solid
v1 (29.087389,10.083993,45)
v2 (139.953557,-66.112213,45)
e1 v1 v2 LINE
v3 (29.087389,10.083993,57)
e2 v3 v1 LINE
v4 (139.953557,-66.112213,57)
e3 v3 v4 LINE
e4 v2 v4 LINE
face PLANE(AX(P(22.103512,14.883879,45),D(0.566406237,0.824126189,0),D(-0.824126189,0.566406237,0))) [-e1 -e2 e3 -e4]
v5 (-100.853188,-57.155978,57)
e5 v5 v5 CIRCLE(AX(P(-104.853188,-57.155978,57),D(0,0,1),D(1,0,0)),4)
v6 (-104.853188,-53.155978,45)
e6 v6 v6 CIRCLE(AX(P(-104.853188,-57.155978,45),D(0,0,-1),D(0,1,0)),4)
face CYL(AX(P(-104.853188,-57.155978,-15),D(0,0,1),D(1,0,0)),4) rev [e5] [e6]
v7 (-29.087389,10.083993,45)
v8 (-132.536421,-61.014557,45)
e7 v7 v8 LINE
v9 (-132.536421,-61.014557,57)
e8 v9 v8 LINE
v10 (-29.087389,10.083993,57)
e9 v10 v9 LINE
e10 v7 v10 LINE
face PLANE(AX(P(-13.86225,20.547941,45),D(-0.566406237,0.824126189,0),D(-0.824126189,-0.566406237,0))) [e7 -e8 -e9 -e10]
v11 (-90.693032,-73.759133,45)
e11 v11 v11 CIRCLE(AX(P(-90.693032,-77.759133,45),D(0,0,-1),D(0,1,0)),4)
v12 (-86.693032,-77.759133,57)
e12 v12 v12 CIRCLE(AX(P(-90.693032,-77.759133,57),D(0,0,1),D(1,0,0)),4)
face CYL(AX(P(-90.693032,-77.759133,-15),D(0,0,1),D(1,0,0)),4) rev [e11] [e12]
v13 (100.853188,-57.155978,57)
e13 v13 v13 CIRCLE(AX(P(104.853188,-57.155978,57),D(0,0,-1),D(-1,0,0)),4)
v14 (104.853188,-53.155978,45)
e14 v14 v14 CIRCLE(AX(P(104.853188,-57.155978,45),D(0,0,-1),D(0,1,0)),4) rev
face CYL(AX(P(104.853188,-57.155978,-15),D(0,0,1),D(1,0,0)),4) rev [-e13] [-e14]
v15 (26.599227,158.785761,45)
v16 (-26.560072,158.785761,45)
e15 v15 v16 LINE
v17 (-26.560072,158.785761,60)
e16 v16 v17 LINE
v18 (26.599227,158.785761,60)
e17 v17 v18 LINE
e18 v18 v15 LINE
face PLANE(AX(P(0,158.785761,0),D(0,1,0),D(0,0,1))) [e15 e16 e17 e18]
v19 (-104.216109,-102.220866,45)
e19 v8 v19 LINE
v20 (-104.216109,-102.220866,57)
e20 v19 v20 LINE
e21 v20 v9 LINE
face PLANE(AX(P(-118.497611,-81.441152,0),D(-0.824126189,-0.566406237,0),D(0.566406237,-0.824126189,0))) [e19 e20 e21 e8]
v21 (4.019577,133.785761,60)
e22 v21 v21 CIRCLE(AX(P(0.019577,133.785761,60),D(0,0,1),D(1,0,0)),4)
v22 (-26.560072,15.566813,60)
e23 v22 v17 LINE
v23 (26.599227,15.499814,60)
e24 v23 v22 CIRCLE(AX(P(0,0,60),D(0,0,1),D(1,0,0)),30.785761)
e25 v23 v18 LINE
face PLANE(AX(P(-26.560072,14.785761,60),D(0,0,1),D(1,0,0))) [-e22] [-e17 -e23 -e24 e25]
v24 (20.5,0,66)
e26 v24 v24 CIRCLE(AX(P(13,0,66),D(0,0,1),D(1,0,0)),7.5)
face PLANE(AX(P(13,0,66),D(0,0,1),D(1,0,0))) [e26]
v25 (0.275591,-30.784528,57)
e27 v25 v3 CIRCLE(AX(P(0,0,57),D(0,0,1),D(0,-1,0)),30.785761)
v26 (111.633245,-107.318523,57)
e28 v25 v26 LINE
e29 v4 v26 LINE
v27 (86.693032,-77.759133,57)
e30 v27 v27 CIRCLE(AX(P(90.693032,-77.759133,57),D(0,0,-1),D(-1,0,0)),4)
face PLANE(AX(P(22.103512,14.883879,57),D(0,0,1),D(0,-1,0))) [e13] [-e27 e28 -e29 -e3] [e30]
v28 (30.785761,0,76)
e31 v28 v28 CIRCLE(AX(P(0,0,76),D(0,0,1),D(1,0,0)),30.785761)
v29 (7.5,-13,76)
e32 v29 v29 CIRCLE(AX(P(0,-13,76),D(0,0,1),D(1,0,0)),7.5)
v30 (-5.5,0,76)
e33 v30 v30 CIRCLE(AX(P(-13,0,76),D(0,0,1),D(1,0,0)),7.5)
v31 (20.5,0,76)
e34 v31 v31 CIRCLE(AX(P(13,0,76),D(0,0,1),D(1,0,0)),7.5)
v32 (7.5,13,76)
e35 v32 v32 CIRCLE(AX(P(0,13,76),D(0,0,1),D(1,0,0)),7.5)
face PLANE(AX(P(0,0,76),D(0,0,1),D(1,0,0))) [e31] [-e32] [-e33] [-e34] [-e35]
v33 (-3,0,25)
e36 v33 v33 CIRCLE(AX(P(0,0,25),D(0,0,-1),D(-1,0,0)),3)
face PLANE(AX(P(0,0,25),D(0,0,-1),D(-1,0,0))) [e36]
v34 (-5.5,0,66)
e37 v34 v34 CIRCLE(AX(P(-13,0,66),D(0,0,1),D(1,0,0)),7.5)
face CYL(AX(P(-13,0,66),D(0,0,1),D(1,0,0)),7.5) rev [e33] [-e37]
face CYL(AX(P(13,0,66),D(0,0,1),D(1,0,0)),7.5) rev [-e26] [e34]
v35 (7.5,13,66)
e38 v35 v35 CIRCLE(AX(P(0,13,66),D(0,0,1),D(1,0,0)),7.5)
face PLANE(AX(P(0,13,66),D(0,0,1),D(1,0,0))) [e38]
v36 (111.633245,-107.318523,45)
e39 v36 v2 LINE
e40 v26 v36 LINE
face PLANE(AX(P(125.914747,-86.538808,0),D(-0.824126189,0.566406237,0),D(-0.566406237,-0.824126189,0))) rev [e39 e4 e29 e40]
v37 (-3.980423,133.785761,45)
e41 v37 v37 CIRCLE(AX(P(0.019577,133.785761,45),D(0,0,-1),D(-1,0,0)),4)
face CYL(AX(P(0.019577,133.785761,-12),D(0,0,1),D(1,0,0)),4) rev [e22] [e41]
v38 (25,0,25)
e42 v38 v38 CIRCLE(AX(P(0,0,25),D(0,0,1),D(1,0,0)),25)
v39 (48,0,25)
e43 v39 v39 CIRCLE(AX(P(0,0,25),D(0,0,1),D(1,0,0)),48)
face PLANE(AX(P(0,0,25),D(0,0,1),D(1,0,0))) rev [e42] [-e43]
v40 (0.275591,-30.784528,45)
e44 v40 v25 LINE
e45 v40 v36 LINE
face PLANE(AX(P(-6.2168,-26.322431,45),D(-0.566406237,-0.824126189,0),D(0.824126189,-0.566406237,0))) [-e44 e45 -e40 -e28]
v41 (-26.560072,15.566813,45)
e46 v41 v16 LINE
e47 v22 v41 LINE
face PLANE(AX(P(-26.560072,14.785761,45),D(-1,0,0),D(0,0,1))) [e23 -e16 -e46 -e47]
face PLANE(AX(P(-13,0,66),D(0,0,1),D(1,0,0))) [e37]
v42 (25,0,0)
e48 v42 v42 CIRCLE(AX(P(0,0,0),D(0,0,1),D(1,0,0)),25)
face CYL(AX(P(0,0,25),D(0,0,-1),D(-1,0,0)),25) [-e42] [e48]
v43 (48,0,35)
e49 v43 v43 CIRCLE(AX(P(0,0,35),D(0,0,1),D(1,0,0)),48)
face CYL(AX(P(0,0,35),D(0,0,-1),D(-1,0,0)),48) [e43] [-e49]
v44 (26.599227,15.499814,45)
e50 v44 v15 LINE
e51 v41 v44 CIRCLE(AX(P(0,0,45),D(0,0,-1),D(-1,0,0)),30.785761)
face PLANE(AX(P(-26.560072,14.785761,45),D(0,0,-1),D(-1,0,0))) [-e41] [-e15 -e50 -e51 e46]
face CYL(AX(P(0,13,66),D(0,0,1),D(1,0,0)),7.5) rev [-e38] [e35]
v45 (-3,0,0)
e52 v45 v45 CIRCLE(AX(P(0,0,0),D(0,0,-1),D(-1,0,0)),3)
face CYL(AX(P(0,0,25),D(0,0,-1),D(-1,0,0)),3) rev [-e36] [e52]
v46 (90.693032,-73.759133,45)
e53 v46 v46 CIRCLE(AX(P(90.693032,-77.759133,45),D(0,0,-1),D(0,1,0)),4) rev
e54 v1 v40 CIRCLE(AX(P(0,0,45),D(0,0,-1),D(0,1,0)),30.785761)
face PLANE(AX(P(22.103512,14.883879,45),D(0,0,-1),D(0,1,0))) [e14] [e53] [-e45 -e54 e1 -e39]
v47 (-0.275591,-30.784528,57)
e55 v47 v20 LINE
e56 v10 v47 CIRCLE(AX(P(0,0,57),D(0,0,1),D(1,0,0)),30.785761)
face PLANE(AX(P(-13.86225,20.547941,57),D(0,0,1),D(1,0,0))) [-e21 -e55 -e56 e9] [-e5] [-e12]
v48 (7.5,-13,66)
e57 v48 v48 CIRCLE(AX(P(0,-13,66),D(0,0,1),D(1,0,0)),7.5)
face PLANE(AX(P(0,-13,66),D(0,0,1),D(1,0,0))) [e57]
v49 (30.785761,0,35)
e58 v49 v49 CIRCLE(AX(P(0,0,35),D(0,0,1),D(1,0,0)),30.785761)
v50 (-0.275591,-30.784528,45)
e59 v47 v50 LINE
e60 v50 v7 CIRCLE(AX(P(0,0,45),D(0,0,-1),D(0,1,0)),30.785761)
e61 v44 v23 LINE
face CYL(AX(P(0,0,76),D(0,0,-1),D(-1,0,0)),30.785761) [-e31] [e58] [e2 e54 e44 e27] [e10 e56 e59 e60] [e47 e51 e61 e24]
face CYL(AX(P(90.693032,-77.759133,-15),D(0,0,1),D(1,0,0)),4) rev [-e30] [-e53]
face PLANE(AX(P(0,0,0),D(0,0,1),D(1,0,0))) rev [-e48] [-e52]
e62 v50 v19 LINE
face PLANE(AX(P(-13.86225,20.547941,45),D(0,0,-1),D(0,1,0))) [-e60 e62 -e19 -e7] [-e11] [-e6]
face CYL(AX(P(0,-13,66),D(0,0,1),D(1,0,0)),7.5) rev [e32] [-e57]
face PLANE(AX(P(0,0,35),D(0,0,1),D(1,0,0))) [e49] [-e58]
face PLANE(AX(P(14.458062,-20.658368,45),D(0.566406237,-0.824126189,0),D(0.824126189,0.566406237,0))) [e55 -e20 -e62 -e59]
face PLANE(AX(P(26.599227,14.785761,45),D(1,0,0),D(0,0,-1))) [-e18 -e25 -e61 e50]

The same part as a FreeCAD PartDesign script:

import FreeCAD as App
import Part
import Sketcher
Q = App.Units.Quantity


def add_polygon(sketch, points):
    """Adds a closed chain of lines whose ends are joined by coincident constraints."""
    first, n = sketch.GeometryCount, len(points)
    for a, b in zip(points, points[1:] + points[:1]):
        sketch.addGeometry(Part.LineSegment(App.Vector(*a, 0), App.Vector(*b, 0)), False)
    for i in range(n):
        sketch.addConstraint(Sketcher.Constraint("Coincident", first + i, 2, first + (i + 1) % n, 1))

doc = App.newDocument("Part")
params = doc.addObject("Spreadsheet::Sheet", "Params")
for row, (alias, value) in enumerate([
    ("sketch1_diameter", "50 mm"),
    ("pad1_length", "25 mm"),
    ("sketch2_diameter", "96 mm"),
    ("pad2_length", "10 mm"),
    ("pad3_length", "41 mm"),
    ("sketch4_width", "12 mm"),
    ("sketch4_height", "50 mm"),
    ("pad4_length", "113 mm"),
    ("pad4_length2", "31 mm"),
    ("sketch5_width", "12 mm"),
    ("sketch5_height", "50 mm"),
    ("pad5_length", "122 mm"),
    ("pad5_length2", "21 mm"),
    ("sketch6_diameter", "6 mm"),
    ("pocket1_length", "25 mm"),
    ("sketch7_height", "15 mm"),
    ("pad6_length", "128 mm"),
    ("pad6_length2", "16 mm"),
    ("sketch8_diameter", "15 mm"),
    ("pocket2_length", "10 mm"),
    ("sketch9_diameter", "8 mm"),
    ("pocket3_length", "72 mm"),
    ("sketch10_diameter", "8 mm"),
    ("pocket4_length", "72 mm"),
], start=1):
    params.set(f"A{row}", alias)
    params.set(f"B{row}", "=" + value)
    params.setAlias(f"B{row}", alias)

body = doc.addObject("PartDesign::Body", "Body")

sketch1 = doc.addObject("Sketcher::SketchObject", "Sketch")
body.addObject(sketch1)
sketch1.AttachmentSupport = (doc.XY_Plane, [""])
sketch1.MapMode = "FlatFace"
sketch1.addGeometry(Part.Circle(App.Vector(0, 0, 0), App.Vector(0, 0, 1), 25), False)
sketch1.addConstraint([
    Sketcher.Constraint("Coincident", 0, 3, -1, 1),
    Sketcher.Constraint("Diameter", 0, Q("50 mm")),
])
sketch1.setExpression("Constraints[1]", "Params.sketch1_diameter")
pad1 = doc.addObject("PartDesign::Pad", "Pad")
body.addObject(pad1)
pad1.Profile = sketch1
pad1.setExpression("Length", "Params.pad1_length")

sketch2 = doc.addObject("Sketcher::SketchObject", "Sketch001")
body.addObject(sketch2)
sketch2.AttachmentSupport = (doc.XY_Plane, [""])
sketch2.MapMode = "FlatFace"
sketch2.AttachmentOffset = App.Placement(App.Vector(0, 0, 25), App.Rotation())
sketch2.addGeometry(Part.Circle(App.Vector(0, 0, 0), App.Vector(0, 0, 1), 48), False)
sketch2.addConstraint([
    Sketcher.Constraint("Coincident", 0, 3, -1, 1),
    Sketcher.Constraint("Diameter", 0, Q("96 mm")),
])
sketch2.setExpression("Constraints[1]", "Params.sketch2_diameter")
pad2 = doc.addObject("PartDesign::Pad", "Pad001")
body.addObject(pad2)
pad2.Profile = sketch2
pad2.setExpression("Length", "Params.pad2_length")

sketch3 = doc.addObject("Sketcher::SketchObject", "Sketch002")
body.addObject(sketch3)
sketch3.AttachmentSupport = (doc.XY_Plane, [""])
sketch3.MapMode = "FlatFace"
sketch3.AttachmentOffset = App.Placement(App.Vector(0, 0, 35), App.Rotation())
sketch3.addGeometry(Part.Circle(App.Vector(0, 0, 0), App.Vector(0, 0, 1), 31), False)
sketch3.addConstraint([
    Sketcher.Constraint("Coincident", 0, 3, -1, 1),
    Sketcher.Constraint("Diameter", 0, Q("61.571522 mm")),
])
pad3 = doc.addObject("PartDesign::Pad", "Pad002")
body.addObject(pad3)
pad3.Profile = sketch3
pad3.setExpression("Length", "Params.pad3_length")

sketch4 = doc.addObject("Sketcher::SketchObject", "Sketch003")
body.addObject(sketch4)
sketch4.Placement = App.Placement(App.Vector(-25.371352, -17.437247, 0), App.Rotation(App.Vector(0, 0, 1), App.Vector(-0.566406237, 0.824126189, 0), App.Vector(-0.824126189, -0.566406237, 0), "ZXY"))
add_polygon(sketch4, [(45, 25), (45, -25), (57, -25), (57, 25)])
sketch4.addConstraint([
    Sketcher.Constraint("Vertical", 0),
    Sketcher.Constraint("Horizontal", 1),
    Sketcher.Constraint("Vertical", 2),
    Sketcher.Constraint("Horizontal", 3),
    Sketcher.Constraint("DistanceX", 1, 1, 1, 2, Q("12 mm")),
    Sketcher.Constraint("DistanceY", 0, 2, 0, 1, Q("50 mm")),
    Sketcher.Constraint("DistanceX", -1, 1, 0, 2, Q("45 mm")),
    Sketcher.Constraint("DistanceY", 0, 2, -1, 1, Q("25.214239 mm")),
])
sketch4.setExpression("Constraints[8]", "Params.sketch4_width")
sketch4.setExpression("Constraints[9]", "Params.sketch4_height")
pad4 = doc.addObject("PartDesign::Pad", "Pad003")
body.addObject(pad4)
pad4.Profile = sketch4
pad4.Type = "TwoLengths"
pad4.setExpression("Length", "Params.pad4_length")
pad4.setExpression("Length2", "Params.pad4_length2")

sketch5 = doc.addObject("Sketcher::SketchObject", "Sketch004")
body.addObject(sketch5)
sketch5.Placement = App.Placement(App.Vector(25.371352, -17.437247, 0), App.Rotation(App.Vector(0, 0, -1), App.Vector(0.566406237, 0.824126189, 0), App.Vector(0.824126189, -0.566406237, 0), "ZXY"))
add_polygon(sketch5, [(-57, 25), (-57, -25), (-45, -25), (-45, 25)])
sketch5.addConstraint([
    Sketcher.Constraint("Vertical", 0),
    Sketcher.Constraint("Horizontal", 1),
    Sketcher.Constraint("Vertical", 2),
    Sketcher.Constraint("Horizontal", 3),
    Sketcher.Constraint("DistanceX", 1, 1, 1, 2, Q("12 mm")),
    Sketcher.Constraint("DistanceY", 0, 2, 0, 1, Q("50 mm")),
    Sketcher.Constraint("DistanceX", 0, 2, -1, 1, Q("57 mm")),
    Sketcher.Constraint("DistanceY", 0, 2, -1, 1, Q("25.214239 mm")),
])
sketch5.setExpression("Constraints[8]", "Params.sketch5_width")
sketch5.setExpression("Constraints[9]", "Params.sketch5_height")
pad5 = doc.addObject("PartDesign::Pad", "Pad004")
body.addObject(pad5)
pad5.Profile = sketch5
pad5.Type = "TwoLengths"
pad5.setExpression("Length", "Params.pad5_length")
pad5.setExpression("Length2", "Params.pad5_length2")

sketch6 = doc.addObject("Sketcher::SketchObject", "Sketch005")
body.addObject(sketch6)
sketch6.AttachmentSupport = (doc.XY_Plane, [""])
sketch6.MapMode = "FlatFace"
sketch6.addGeometry(Part.Circle(App.Vector(0, 0, 0), App.Vector(0, 0, 1), 3), False)
sketch6.addConstraint([
    Sketcher.Constraint("Coincident", 0, 3, -1, 1),
    Sketcher.Constraint("Diameter", 0, Q("6 mm")),
])
sketch6.setExpression("Constraints[1]", "Params.sketch6_diameter")
pocket1 = doc.addObject("PartDesign::Pocket", "Pocket")
body.addObject(pocket1)
pocket1.Profile = sketch6
pocket1.setExpression("Length", "Params.pocket1_length")
pocket1.Reversed = True

sketch7 = doc.addObject("Sketcher::SketchObject", "Sketch006")
body.addObject(sketch7)
sketch7.AttachmentSupport = (doc.XZ_Plane, [""])
sketch7.MapMode = "FlatFace"
sketch7.AttachmentOffset = App.Placement(App.Vector(0, 0, -30.785761), App.Rotation())
add_polygon(sketch7, [(-27, 45), (-27, 60), (27, 60), (27, 45)])
sketch7.addConstraint([
    Sketcher.Constraint("Vertical", 0),
    Sketcher.Constraint("Horizontal", 1),
    Sketcher.Constraint("Vertical", 2),
    Sketcher.Constraint("Horizontal", 3),
    Sketcher.Constraint("DistanceY", 0, 1, 0, 2, Q("15 mm")),
    Sketcher.Constraint("DistanceY", -1, 1, 0, 2, Q("60 mm")),
    Sketcher.Constraint("DistanceX", 1, 1, 1, 2, Q("53.159299 mm")),
    Sketcher.Constraint("DistanceX", 0, 2, -1, 1, Q("26.560072 mm")),
])
sketch7.setExpression("Constraints[8]", "Params.sketch7_height")
pad6 = doc.addObject("PartDesign::Pad", "Pad005")
body.addObject(pad6)
pad6.Profile = sketch7
pad6.Type = "TwoLengths"
pad6.setExpression("Length", "Params.pad6_length")
pad6.setExpression("Length2", "Params.pad6_length2")
pad6.Reversed = True

sketch8 = doc.addObject("Sketcher::SketchObject", "Sketch007")
body.addObject(sketch8)
sketch8.AttachmentSupport = (doc.XY_Plane, [""])
sketch8.MapMode = "FlatFace"
sketch8.AttachmentOffset = App.Placement(App.Vector(0, 0, 76), App.Rotation())
sketch8.addGeometry([
    Part.Circle(App.Vector(-13, 0, 0), App.Vector(0, 0, 1), 8),
    Part.Circle(App.Vector(13, 0, 0), App.Vector(0, 0, 1), 8),
    Part.Circle(App.Vector(0, 13, 0), App.Vector(0, 0, 1), 8),
    Part.Circle(App.Vector(0, -13, 0), App.Vector(0, 0, 1), 8),
], False)
sketch8.addConstraint([
    Sketcher.Constraint("Equal", 0, 1),
    Sketcher.Constraint("Equal", 1, 2),
    Sketcher.Constraint("Equal", 2, 3),
    Sketcher.Constraint("Symmetric", 0, 3, 1, 3, -1, 1),
    Sketcher.Constraint("Symmetric", 2, 3, 3, 3, -1, 1),
    Sketcher.Constraint("PointOnObject", 0, 3, -1),
    Sketcher.Constraint("PointOnObject", 2, 3, -2),
    Sketcher.Constraint("Diameter", 0, Q("15 mm")),
    Sketcher.Constraint("DistanceX", 0, 3, -1, 1, Q("13 mm")),
    Sketcher.Constraint("DistanceY", -1, 1, 2, 3, Q("13 mm")),
])
sketch8.setExpression("Constraints[7]", "Params.sketch8_diameter")
pocket2 = doc.addObject("PartDesign::Pocket", "Pocket001")
body.addObject(pocket2)
pocket2.Profile = sketch8
pocket2.setExpression("Length", "Params.pocket2_length")

sketch9 = doc.addObject("Sketcher::SketchObject", "Sketch008")
body.addObject(sketch9)
sketch9.AttachmentSupport = (doc.XY_Plane, [""])
sketch9.MapMode = "FlatFace"
sketch9.AttachmentOffset = App.Placement(App.Vector(0, 0, 57), App.Rotation())
sketch9.addGeometry([
    Part.Circle(App.Vector(-104.9, -57.2, 0), App.Vector(0, 0, 1), 4),
    Part.Circle(App.Vector(-90.7, -77.8, 0), App.Vector(0, 0, 1), 4),
], False)
sketch9.addConstraint([
    Sketcher.Constraint("Equal", 0, 1),
    Sketcher.Constraint("Diameter", 0, Q("8 mm")),
    Sketcher.Constraint("DistanceX", 0, 3, -1, 1, Q("104.853188 mm")),
    Sketcher.Constraint("DistanceY", 0, 3, -1, 1, Q("57.155978 mm")),
    Sketcher.Constraint("DistanceX", 1, 3, -1, 1, Q("90.693032 mm")),
    Sketcher.Constraint("DistanceY", 1, 3, -1, 1, Q("77.759133 mm")),
])
sketch9.setExpression("Constraints[1]", "Params.sketch9_diameter")
pocket3 = doc.addObject("PartDesign::Pocket", "Pocket002")
body.addObject(pocket3)
pocket3.Profile = sketch9
pocket3.setExpression("Length", "Params.pocket3_length")
doc.recompute()

mirrored = doc.addObject("PartDesign::Mirrored", "Mirrored")
body.addObject(mirrored)
mirrored.Originals = [pocket3]
mirrored.MirrorPlane = (doc.YZ_Plane, [""])
body.Tip = mirrored

sketch10 = doc.addObject("Sketcher::SketchObject", "Sketch009")
body.addObject(sketch10)
sketch10.AttachmentSupport = (doc.XY_Plane, [""])
sketch10.MapMode = "FlatFace"
sketch10.AttachmentOffset = App.Placement(App.Vector(0, 0, 60), App.Rotation())
sketch10.addGeometry(Part.Circle(App.Vector(0, 133.8, 0), App.Vector(0, 0, 1), 4), False)
sketch10.addConstraint([
    Sketcher.Constraint("Diameter", 0, Q("8 mm")),
    Sketcher.Constraint("DistanceY", -1, 1, 0, 3, Q("133.785761 mm")),
    Sketcher.Constraint("DistanceX", -1, 1, 0, 3, Q("0.019577 mm")),
])
sketch10.setExpression("Constraints[0]", "Params.sketch10_diameter")
pocket4 = doc.addObject("PartDesign::Pocket", "Pocket003")
body.addObject(pocket4)
pocket4.Profile = sketch10
pocket4.setExpression("Length", "Params.pocket4_length")

doc.recompute()
